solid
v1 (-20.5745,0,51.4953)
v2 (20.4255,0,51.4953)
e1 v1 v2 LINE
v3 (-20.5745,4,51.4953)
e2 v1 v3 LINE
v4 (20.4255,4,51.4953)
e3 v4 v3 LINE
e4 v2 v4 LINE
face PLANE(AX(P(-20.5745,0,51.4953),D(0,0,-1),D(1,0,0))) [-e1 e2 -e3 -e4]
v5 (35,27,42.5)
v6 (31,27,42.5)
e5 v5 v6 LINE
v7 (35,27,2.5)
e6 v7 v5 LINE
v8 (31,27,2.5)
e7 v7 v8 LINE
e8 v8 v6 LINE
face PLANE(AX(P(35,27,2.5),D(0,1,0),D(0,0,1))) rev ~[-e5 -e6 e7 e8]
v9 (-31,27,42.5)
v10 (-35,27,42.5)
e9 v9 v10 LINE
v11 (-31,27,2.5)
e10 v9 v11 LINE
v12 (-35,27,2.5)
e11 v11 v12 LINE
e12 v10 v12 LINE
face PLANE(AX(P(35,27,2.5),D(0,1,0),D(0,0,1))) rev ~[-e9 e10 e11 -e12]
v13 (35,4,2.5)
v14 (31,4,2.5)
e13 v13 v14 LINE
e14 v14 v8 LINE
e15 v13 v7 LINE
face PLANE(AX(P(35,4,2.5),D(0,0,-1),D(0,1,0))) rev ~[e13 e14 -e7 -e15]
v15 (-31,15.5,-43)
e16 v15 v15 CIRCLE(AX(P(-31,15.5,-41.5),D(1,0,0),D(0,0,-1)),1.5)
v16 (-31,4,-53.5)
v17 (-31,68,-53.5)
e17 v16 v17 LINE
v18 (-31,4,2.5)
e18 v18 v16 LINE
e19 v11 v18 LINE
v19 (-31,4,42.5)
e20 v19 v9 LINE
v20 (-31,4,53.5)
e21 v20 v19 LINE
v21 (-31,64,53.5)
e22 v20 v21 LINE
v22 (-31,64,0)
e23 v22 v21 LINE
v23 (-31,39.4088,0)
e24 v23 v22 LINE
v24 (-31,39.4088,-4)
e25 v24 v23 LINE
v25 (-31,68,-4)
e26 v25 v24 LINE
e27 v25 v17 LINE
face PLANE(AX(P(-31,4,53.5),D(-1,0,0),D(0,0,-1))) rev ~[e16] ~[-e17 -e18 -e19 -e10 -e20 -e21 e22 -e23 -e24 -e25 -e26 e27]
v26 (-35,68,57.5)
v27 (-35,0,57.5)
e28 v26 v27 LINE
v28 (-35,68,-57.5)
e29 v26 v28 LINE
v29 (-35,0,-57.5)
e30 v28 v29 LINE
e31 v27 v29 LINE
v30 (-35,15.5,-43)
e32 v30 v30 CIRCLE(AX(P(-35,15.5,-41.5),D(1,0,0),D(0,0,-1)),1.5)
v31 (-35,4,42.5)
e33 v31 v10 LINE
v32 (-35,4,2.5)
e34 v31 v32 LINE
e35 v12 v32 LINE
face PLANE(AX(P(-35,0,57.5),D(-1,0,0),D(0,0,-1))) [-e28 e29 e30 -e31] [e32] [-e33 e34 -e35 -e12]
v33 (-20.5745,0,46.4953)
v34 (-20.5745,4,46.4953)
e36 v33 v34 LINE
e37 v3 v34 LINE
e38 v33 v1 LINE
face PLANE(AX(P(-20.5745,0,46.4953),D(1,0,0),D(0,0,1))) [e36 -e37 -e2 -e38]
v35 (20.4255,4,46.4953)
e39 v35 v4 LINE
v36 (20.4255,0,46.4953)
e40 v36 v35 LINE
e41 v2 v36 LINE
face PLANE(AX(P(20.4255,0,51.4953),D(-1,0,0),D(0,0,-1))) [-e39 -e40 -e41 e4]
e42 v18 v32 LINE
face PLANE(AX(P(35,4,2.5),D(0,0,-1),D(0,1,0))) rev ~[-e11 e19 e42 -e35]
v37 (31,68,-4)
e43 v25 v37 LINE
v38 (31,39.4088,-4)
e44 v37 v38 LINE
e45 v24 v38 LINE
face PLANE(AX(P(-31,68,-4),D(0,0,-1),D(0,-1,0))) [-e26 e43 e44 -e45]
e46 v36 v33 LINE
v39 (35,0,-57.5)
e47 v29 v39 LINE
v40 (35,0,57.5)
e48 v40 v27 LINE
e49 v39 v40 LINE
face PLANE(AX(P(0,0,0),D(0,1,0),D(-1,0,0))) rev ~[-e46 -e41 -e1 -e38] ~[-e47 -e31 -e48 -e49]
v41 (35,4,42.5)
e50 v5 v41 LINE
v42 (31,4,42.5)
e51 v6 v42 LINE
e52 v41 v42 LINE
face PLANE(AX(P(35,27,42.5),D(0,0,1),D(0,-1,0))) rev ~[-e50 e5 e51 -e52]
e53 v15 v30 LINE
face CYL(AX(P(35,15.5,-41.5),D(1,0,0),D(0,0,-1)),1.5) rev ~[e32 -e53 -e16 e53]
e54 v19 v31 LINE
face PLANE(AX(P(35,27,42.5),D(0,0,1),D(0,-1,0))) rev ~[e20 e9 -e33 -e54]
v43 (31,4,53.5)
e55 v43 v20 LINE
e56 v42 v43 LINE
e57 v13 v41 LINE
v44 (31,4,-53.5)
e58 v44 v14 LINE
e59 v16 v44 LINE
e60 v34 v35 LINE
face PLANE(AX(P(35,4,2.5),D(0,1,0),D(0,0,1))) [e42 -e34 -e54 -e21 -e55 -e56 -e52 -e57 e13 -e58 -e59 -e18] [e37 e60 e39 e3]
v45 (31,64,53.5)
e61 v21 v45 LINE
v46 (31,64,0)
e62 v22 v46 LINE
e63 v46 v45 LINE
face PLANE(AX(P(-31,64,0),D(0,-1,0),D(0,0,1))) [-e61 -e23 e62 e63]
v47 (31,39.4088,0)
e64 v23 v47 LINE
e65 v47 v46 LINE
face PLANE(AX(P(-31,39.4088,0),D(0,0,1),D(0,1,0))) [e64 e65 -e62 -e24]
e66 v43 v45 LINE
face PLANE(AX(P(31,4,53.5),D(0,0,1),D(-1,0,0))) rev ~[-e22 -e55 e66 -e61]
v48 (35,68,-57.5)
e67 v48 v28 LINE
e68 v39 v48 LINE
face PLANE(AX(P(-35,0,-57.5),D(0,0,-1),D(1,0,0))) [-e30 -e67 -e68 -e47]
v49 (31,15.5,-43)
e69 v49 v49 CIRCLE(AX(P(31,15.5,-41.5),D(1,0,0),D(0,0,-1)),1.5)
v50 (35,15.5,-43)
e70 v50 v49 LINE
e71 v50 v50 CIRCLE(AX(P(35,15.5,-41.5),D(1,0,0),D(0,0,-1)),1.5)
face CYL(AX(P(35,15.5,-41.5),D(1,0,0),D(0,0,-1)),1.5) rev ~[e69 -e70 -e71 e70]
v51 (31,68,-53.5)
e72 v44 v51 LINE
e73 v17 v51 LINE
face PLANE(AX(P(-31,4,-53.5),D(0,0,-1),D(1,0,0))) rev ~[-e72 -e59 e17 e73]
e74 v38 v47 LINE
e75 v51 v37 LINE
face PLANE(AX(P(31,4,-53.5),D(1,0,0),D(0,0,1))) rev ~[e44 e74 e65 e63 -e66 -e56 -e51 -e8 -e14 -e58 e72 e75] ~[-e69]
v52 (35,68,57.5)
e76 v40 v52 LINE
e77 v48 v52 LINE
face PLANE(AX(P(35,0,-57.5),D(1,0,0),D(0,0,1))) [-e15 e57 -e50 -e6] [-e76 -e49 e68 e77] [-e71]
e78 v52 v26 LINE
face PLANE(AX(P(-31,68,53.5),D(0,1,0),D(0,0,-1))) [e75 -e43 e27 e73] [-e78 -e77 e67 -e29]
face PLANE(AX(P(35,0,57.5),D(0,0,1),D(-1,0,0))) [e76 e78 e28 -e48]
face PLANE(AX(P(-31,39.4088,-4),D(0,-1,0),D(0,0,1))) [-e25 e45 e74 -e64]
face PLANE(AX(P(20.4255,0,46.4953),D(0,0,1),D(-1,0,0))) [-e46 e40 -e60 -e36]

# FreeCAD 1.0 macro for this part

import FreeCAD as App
import Part
import Sketcher
Q = App.Units.Quantity


def add_polygon(sketch, points):
    """Adds a closed chain of lines whose ends are joined by coincident constraints."""
    first, n = sketch.GeometryCount, len(points)
    for a, b in zip(points, points[1:] + points[:1]):
        sketch.addGeometry(Part.LineSegment(App.Vector(*a, 0), App.Vector(*b, 0)), False)
    for i in range(n):
        sketch.addConstraint(Sketcher.Constraint("Coincident", first + i, 2, first + (i + 1) % n, 1))

doc = App.newDocument("Part")
body = doc.addObject("PartDesign::Body", "Body")

# Sketch on XZ plane
sketch1 = body.newObject("Sketcher::SketchObject", "Sketch")
sketch1.AttachmentSupport = (doc.getObject("XZ_Plane"), [""])
sketch1.MapMode = "FlatFace"
add_polygon(sketch1, [(-35, 58), (35, 58), (35, -58), (-35, -58)])  # lines 0-3
sketch1.addConstraint(Sketcher.Constraint("Horizontal", 0))
sketch1.addConstraint(Sketcher.Constraint("Vertical", 1))
sketch1.addConstraint(Sketcher.Constraint("Horizontal", 2))
sketch1.addConstraint(Sketcher.Constraint("Vertical", 3))
sketch1.addConstraint(Sketcher.Constraint("Symmetric", 0, 2, 2, 2, -1, 1))
sketch1.addConstraint(Sketcher.Constraint("DistanceX", 0, 1, 0, 2, Q("70 mm")))
sketch1.addConstraint(Sketcher.Constraint("DistanceY", 1, 2, 1, 1, Q("115 mm")))
pad1 = body.newObject("PartDesign::Pad", "Pad")
pad1.Profile = sketch1
pad1.Length = 4
pad1.Reversed = True

# Sketch on XZ plane
sketch2 = body.newObject("Sketcher::SketchObject", "Sketch001")
sketch2.AttachmentSupport = (doc.getObject("XZ_Plane"), [""])
sketch2.MapMode = "FlatFace"
sketch2.AttachmentOffset = App.Placement(App.Vector(0, 0, -4), App.Rotation())
add_polygon(sketch2, [(35, 58), (35, -58), (-35, -58), (-35, 58)])  # lines 0-3
add_polygon(sketch2, [(31, -54), (31, 54), (-31, 54), (-31, -54)])  # lines 4-7
sketch2.addConstraint(Sketcher.Constraint("Vertical", 0))
sketch2.addConstraint(Sketcher.Constraint("Horizontal", 1))
sketch2.addConstraint(Sketcher.Constraint("Vertical", 2))
sketch2.addConstraint(Sketcher.Constraint("Horizontal", 3))
sketch2.addConstraint(Sketcher.Constraint("Vertical", 4))
sketch2.addConstraint(Sketcher.Constraint("Horizontal", 5))
sketch2.addConstraint(Sketcher.Constraint("Vertical", 6))
sketch2.addConstraint(Sketcher.Constraint("Horizontal", 7))
sketch2.addConstraint(Sketcher.Constraint("Symmetric", 0, 2, 2, 2, -1, 1))
sketch2.addConstraint(Sketcher.Constraint("Symmetric", 4, 2, 6, 2, -1, 1))
sketch2.addConstraint(Sketcher.Constraint("DistanceX", 4, 2, 3, 2, Q("4 mm")))
sketch2.addConstraint(Sketcher.Constraint("DistanceY", 4, 2, 3, 2, Q("4 mm")))
sketch2.addConstraint(Sketcher.Constraint("DistanceX", 1, 2, 1, 1, Q("70 mm")))
sketch2.addConstraint(Sketcher.Constraint("DistanceY", 0, 2, 0, 1, Q("115 mm")))
pad2 = body.newObject("PartDesign::Pad", "Pad001")
pad2.Profile = sketch2
pad2.Length = 64
pad2.Reversed = True

# Sketch on YZ plane
sketch3 = body.newObject("Sketcher::SketchObject", "Sketch002")
sketch3.AttachmentSupport = (doc.getObject("YZ_Plane"), [""])
sketch3.MapMode = "FlatFace"
sketch3.AttachmentOffset = App.Placement(App.Vector(0, 0, 35), App.Rotation())
add_polygon(sketch3, [(4, 42), (4, 2), (27, 2), (27, 42)])  # lines 0-3
sketch3.addConstraint(Sketcher.Constraint("Vertical", 0))
sketch3.addConstraint(Sketcher.Constraint("Horizontal", 1))
sketch3.addConstraint(Sketcher.Constraint("Vertical", 2))
sketch3.addConstraint(Sketcher.Constraint("Horizontal", 3))
sketch3.addConstraint(Sketcher.Constraint("DistanceX", 1, 1, 1, 2, Q("23 mm")))
sketch3.addConstraint(Sketcher.Constraint("DistanceY", 0, 2, 0, 1, Q("40 mm")))
sketch3.addConstraint(Sketcher.Constraint("DistanceX", -1, 1, 0, 2, Q("4 mm")))
sketch3.addConstraint(Sketcher.Constraint("DistanceY", -1, 1, 0, 2, Q("2.5 mm")))
pocket1 = body.newObject("PartDesign::Pocket", "Pocket")
pocket1.Profile = sketch3
pocket1.Length = 75

# Sketch on YZ plane
sketch4 = body.newObject("Sketcher::SketchObject", "Sketch003")
sketch4.AttachmentSupport = (doc.getObject("YZ_Plane"), [""])
sketch4.MapMode = "FlatFace"
sketch4.AttachmentOffset = App.Placement(App.Vector(0, 0, 35), App.Rotation())
sketch4.addGeometry(Part.Circle(App.Vector(15.5, -41.5, 0), App.Vector(0, 0, 1), 1.5), False)
sketch4.addConstraint(Sketcher.Constraint("Diameter", 0, Q("3 mm")))
sketch4.addConstraint(Sketcher.Constraint("DistanceX", -1, 1, 0, 3, Q("15.5 mm")))
sketch4.addConstraint(Sketcher.Constraint("DistanceY", 0, 3, -1, 1, Q("41.5 mm")))
pocket2 = body.newObject("PartDesign::Pocket", "Pocket001")
pocket2.Profile = sketch4
pocket2.Length = 75

# Sketch on YZ plane
sketch5 = body.newObject("Sketcher::SketchObject", "Sketch004")
sketch5.AttachmentSupport = (doc.getObject("YZ_Plane"), [""])
sketch5.MapMode = "FlatFace"
sketch5.AttachmentOffset = App.Placement(App.Vector(0, 0, -31), App.Rotation())
add_polygon(sketch5, [(68, 53.5), (64, 53.5), (64, 0), (39.4, 0), (39.4, -4), (68, -4)])  # lines 0-5
sketch5.addConstraint(Sketcher.Constraint("Horizontal", 0))
sketch5.addConstraint(Sketcher.Constraint("Vertical", 1))
sketch5.addConstraint(Sketcher.Constraint("Horizontal", 2))
sketch5.addConstraint(Sketcher.Constraint("Vertical", 3))
sketch5.addConstraint(Sketcher.Constraint("Horizontal", 4))
sketch5.addConstraint(Sketcher.Constraint("Vertical", 5))
sketch5.addConstraint(Sketcher.Constraint("PointOnObject", 1, 2, -1))
sketch5.addConstraint(Sketcher.Constraint("Equal", 0, 3))
sketch5.addConstraint(Sketcher.Constraint("DistanceX", 0, 2, 0, 1, Q("4 mm")))
sketch5.addConstraint(Sketcher.Constraint("DistanceY", 1, 2, 1, 1, Q("53.5 mm")))
sketch5.addConstraint(Sketcher.Constraint("DistanceX", -1, 1, 0, 2, Q("64 mm")))
sketch5.addConstraint(Sketcher.Constraint("DistanceX", 2, 2, 2, 1, Q("24.5912 mm")))
pad3 = body.newObject("PartDesign::Pad", "Pad002")
pad3.Profile = sketch5
pad3.Length = 62

# Sketch on XZ plane
sketch6 = body.newObject("Sketcher::SketchObject", "Sketch005")
sketch6.AttachmentSupport = (doc.getObject("XZ_Plane"), [""])
sketch6.MapMode = "FlatFace"
add_polygon(sketch6, [(20, 51), (-21, 51), (-21, 46), (20, 46)])  # lines 0-3
sketch6.addConstraint(Sketcher.Constraint("Horizontal", 0))
sketch6.addConstraint(Sketcher.Constraint("Vertical", 1))
sketch6.addConstraint(Sketcher.Constraint("Horizontal", 2))
sketch6.addConstraint(Sketcher.Constraint("Vertical", 3))
sketch6.addConstraint(Sketcher.Constraint("DistanceX", 0, 2, 0, 1, Q("41 mm")))
sketch6.addConstraint(Sketcher.Constraint("DistanceY", 1, 2, 1, 1, Q("5 mm")))
sketch6.addConstraint(Sketcher.Constraint("DistanceX", 0, 2, -1, 1, Q("20.5745 mm")))
sketch6.addConstraint(Sketcher.Constraint("DistanceY", -1, 1, 0, 2, Q("51.4953 mm")))
pocket3 = body.newObject("PartDesign::Pocket", "Pocket002")
pocket3.Profile = sketch6
pocket3.Length = 10

doc.recompute()
